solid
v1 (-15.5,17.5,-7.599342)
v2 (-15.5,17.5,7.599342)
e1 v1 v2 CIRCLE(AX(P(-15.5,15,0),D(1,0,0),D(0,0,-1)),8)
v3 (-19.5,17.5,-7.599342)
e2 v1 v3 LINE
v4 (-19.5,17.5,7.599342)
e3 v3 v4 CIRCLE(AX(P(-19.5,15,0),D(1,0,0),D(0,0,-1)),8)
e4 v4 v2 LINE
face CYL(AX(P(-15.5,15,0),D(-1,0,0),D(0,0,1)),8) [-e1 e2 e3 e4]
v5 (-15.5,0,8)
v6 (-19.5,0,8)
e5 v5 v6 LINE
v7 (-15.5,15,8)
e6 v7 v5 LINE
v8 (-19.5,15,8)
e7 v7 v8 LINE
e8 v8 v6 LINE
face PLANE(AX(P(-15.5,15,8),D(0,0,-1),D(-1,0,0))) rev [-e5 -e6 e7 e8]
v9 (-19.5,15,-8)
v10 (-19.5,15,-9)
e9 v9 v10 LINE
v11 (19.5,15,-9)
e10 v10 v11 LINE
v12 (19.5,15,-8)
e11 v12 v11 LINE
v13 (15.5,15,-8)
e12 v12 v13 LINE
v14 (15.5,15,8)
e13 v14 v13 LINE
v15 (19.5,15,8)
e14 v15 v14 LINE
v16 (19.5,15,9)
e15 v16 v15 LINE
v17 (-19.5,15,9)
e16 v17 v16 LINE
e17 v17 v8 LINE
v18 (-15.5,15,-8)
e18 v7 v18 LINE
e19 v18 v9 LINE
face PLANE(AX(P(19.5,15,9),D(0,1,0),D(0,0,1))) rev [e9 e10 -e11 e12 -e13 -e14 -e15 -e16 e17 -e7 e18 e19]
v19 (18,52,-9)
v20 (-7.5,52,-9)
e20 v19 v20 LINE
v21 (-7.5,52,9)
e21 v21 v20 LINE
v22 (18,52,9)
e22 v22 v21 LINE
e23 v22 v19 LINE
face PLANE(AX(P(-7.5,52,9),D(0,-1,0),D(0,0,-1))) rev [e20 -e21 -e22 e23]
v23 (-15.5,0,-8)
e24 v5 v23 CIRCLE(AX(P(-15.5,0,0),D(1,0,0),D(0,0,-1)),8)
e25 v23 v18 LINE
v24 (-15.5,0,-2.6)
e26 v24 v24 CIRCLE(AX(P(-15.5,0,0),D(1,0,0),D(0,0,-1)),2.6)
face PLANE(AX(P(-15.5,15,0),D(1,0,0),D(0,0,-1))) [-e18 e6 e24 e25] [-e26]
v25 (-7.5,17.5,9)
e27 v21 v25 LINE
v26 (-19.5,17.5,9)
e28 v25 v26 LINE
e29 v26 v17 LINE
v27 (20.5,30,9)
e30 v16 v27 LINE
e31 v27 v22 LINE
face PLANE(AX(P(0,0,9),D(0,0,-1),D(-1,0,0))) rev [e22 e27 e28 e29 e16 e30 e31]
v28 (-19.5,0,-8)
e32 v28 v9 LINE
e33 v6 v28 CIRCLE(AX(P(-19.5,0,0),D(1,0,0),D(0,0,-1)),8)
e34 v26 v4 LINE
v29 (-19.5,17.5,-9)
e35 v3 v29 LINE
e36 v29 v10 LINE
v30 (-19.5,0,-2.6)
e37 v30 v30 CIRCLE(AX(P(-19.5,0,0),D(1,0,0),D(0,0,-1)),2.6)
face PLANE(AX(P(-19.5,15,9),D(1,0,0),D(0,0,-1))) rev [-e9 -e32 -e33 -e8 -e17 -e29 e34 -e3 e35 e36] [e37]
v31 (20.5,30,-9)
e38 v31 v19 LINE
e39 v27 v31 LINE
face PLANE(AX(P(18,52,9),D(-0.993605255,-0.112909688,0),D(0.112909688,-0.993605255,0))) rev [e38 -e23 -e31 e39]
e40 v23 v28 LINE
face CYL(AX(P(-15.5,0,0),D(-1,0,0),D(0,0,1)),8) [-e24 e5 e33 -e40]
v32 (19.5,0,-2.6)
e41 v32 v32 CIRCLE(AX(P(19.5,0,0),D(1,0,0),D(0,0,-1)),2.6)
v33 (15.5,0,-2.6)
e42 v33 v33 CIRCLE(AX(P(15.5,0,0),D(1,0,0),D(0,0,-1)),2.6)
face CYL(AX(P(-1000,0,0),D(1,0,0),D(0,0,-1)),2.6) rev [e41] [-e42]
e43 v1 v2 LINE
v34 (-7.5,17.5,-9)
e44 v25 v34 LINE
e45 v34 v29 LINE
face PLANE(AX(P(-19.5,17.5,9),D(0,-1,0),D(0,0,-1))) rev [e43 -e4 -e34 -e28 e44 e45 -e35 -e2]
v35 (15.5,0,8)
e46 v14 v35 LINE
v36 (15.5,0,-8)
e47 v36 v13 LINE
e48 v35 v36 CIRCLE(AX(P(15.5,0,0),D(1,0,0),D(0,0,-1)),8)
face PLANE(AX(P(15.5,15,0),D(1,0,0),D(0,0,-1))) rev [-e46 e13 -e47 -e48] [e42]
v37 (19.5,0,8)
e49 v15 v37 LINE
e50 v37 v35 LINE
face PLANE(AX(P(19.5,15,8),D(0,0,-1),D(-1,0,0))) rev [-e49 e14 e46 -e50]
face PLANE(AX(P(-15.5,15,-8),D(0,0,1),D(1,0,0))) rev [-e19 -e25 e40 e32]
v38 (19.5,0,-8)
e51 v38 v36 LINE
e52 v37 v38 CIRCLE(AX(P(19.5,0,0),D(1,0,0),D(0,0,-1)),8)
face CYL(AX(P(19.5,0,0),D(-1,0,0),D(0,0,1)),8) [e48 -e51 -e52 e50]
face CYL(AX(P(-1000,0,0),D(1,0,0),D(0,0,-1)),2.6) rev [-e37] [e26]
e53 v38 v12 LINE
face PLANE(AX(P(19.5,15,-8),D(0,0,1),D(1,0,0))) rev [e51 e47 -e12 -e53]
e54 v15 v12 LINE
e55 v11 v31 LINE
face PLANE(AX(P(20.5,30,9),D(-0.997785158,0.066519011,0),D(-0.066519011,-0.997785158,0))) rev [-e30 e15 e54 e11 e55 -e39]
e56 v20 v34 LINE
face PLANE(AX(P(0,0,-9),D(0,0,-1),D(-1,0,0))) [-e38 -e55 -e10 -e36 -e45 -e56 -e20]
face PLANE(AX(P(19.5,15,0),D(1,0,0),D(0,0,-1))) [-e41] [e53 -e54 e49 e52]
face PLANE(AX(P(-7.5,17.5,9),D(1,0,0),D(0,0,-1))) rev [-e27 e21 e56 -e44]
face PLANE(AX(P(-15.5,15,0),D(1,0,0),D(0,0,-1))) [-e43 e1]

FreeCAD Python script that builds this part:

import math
import FreeCAD as App
import Part
import Sketcher
from FreeCAD import Vector
Q = App.Units.Quantity


def add_polygon(sketch, points):
    """Adds a closed chain of lines whose ends are joined by coincident constraints."""
    first, n = sketch.GeometryCount, len(points)
    for a, b in zip(points, points[1:] + points[:1]):
        sketch.addGeometry(Part.LineSegment(App.Vector(*a, 0), App.Vector(*b, 0)), False)
    for i in range(n):
        sketch.addConstraint(Sketcher.Constraint("Coincident", first + i, 2, first + (i + 1) % n, 1))

doc = App.newDocument("Part")
body = doc.addObject("PartDesign::Body", "Body")

# Sketch on XY plane
sketch1 = doc.addObject("Sketcher::SketchObject", "Sketch")
body.addObject(sketch1)
sketch1.AttachmentSupport = (doc.XY_Plane, [""])
sketch1.MapMode = "FlatFace"
sketch1.AttachmentOffset = App.Placement(Vector(0, 0, -9), App.Rotation())
add_polygon(sketch1, [(18, 52), (-7.5, 52), (-7.5, 17.5), (-19.5, 17.5), (-19.5, 15), (19.5, 15), (20.5, 30)])  # lines 0-6
sketch1.addConstraint([
    Sketcher.Constraint("Horizontal", 0),
    Sketcher.Constraint("Vertical", 1),
    Sketcher.Constraint("Horizontal", 2),
    Sketcher.Constraint("Vertical", 3),
    Sketcher.Constraint("Horizontal", 4),
    Sketcher.Constraint("DistanceX", 2, 2, 2, 1, Q("12 mm")),
    Sketcher.Constraint("DistanceX", 4, 1, 4, 2, Q("39 mm")),
    Sketcher.Constraint("DistanceX", 0, 2, 0, 1, Q("25.5 mm")),
    Sketcher.Constraint("DistanceY", 1, 2, 1, 1, Q("34.5 mm")),
    Sketcher.Constraint("DistanceY", 3, 2, 3, 1, Q("2.5 mm")),
    Sketcher.Constraint("DistanceY", -1, 1, 0, 2, Q("52 mm")),
    Sketcher.Constraint("DistanceY", -1, 1, 5, 2, Q("30 mm")),
    Sketcher.Constraint("DistanceX", -1, 1, 6, 2, Q("18 mm")),
    Sketcher.Constraint("DistanceX", 4, 2, 5, 2, Q("1 mm")),
])
pad1 = doc.addObject("PartDesign::Pad", "Pad")
body.addObject(pad1)
pad1.Profile = sketch1
pad1.Length = 18

# Sketch on YZ plane
sketch2 = doc.addObject("Sketcher::SketchObject", "Sketch001")
body.addObject(sketch2)
sketch2.AttachmentSupport = (doc.YZ_Plane, [""])
sketch2.MapMode = "FlatFace"
sketch2.AttachmentOffset = App.Placement(Vector(0, 0, -19.5), App.Rotation())
sketch2.addGeometry([
    Part.LineSegment(Vector(0, -8, 0), Vector(15, -8, 0)),
    Part.ArcOfCircle(Part.Circle(Vector(15, 0, 0), Vector(0, 0, 1), 8), math.radians(-90), math.radians(90)),
    Part.LineSegment(Vector(15, 8, 0), Vector(0, 8, 0)),
    Part.ArcOfCircle(Part.Circle(Vector(0, 0, 0), Vector(0, 0, 1), 8), math.radians(90), math.radians(270)),
], False)
sketch2.addConstraint([
    Sketcher.Constraint("Tangent", 0, 2, 1, 1),
    Sketcher.Constraint("Tangent", 1, 2, 2, 1),
    Sketcher.Constraint("Tangent", 2, 2, 3, 1),
    Sketcher.Constraint("Tangent", 3, 2, 0, 1),
    Sketcher.Constraint("Horizontal", 0),
    Sketcher.Constraint("Horizontal", 2),
    Sketcher.Constraint("Coincident", 3, 3, -1, 1),
    Sketcher.Constraint("Radius", 1, Q("8 mm")),
    Sketcher.Constraint("DistanceX", 0, 1, 0, 2, Q("15 mm")),
])
pad2 = doc.addObject("PartDesign::Pad", "Pad001")
body.addObject(pad2)
pad2.Profile = sketch2
pad2.Length = 4

# Sketch on YZ plane
sketch3 = doc.addObject("Sketcher::SketchObject", "Sketch002")
body.addObject(sketch3)
sketch3.AttachmentSupport = (doc.YZ_Plane, [""])
sketch3.MapMode = "FlatFace"
sketch3.AttachmentOffset = App.Placement(Vector(0, 0, 15.5), App.Rotation())
sketch3.addGeometry([
    Part.LineSegment(Vector(0, -8, 0), Vector(15, -8, 0)),
    Part.ArcOfCircle(Part.Circle(Vector(15, 0, 0), Vector(0, 0, 1), 8), math.radians(-90), math.radians(90)),
    Part.LineSegment(Vector(15, 8, 0), Vector(0, 8, 0)),
    Part.ArcOfCircle(Part.Circle(Vector(0, 0, 0), Vector(0, 0, 1), 8), math.radians(90), math.radians(270)),
], False)
sketch3.addConstraint([
    Sketcher.Constraint("Tangent", 0, 2, 1, 1),
    Sketcher.Constraint("Tangent", 1, 2, 2, 1),
    Sketcher.Constraint("Tangent", 2, 2, 3, 1),
    Sketcher.Constraint("Tangent", 3, 2, 0, 1),
    Sketcher.Constraint("Horizontal", 0),
    Sketcher.Constraint("Horizontal", 2),
    Sketcher.Constraint("Coincident", 3, 3, -1, 1),
    Sketcher.Constraint("Radius", 1, Q("8 mm")),
    Sketcher.Constraint("DistanceX", 0, 1, 0, 2, Q("15 mm")),
])
pad3 = doc.addObject("PartDesign::Pad", "Pad002")
body.addObject(pad3)
pad3.Profile = sketch3
pad3.Length = 4

# Sketch on YZ plane
sketch4 = doc.addObject("Sketcher::SketchObject", "Sketch003")
body.addObject(sketch4)
sketch4.AttachmentSupport = (doc.YZ_Plane, [""])
sketch4.MapMode = "FlatFace"
sketch4.addGeometry(Part.Circle(Vector(0, 0, 0), Vector(0, 0, 1), 2.6), False)
sketch4.addConstraint([
    Sketcher.Constraint("Coincident", 0, 3, -1, 1),
    Sketcher.Constraint("Diameter", 0, Q("5.2 mm")),
])
pocket1 = doc.addObject("PartDesign::Pocket", "Pocket")
body.addObject(pocket1)
pocket1.Profile = sketch4
pocket1.Length = 2000
pocket1.Midplane = True

doc.recompute()
